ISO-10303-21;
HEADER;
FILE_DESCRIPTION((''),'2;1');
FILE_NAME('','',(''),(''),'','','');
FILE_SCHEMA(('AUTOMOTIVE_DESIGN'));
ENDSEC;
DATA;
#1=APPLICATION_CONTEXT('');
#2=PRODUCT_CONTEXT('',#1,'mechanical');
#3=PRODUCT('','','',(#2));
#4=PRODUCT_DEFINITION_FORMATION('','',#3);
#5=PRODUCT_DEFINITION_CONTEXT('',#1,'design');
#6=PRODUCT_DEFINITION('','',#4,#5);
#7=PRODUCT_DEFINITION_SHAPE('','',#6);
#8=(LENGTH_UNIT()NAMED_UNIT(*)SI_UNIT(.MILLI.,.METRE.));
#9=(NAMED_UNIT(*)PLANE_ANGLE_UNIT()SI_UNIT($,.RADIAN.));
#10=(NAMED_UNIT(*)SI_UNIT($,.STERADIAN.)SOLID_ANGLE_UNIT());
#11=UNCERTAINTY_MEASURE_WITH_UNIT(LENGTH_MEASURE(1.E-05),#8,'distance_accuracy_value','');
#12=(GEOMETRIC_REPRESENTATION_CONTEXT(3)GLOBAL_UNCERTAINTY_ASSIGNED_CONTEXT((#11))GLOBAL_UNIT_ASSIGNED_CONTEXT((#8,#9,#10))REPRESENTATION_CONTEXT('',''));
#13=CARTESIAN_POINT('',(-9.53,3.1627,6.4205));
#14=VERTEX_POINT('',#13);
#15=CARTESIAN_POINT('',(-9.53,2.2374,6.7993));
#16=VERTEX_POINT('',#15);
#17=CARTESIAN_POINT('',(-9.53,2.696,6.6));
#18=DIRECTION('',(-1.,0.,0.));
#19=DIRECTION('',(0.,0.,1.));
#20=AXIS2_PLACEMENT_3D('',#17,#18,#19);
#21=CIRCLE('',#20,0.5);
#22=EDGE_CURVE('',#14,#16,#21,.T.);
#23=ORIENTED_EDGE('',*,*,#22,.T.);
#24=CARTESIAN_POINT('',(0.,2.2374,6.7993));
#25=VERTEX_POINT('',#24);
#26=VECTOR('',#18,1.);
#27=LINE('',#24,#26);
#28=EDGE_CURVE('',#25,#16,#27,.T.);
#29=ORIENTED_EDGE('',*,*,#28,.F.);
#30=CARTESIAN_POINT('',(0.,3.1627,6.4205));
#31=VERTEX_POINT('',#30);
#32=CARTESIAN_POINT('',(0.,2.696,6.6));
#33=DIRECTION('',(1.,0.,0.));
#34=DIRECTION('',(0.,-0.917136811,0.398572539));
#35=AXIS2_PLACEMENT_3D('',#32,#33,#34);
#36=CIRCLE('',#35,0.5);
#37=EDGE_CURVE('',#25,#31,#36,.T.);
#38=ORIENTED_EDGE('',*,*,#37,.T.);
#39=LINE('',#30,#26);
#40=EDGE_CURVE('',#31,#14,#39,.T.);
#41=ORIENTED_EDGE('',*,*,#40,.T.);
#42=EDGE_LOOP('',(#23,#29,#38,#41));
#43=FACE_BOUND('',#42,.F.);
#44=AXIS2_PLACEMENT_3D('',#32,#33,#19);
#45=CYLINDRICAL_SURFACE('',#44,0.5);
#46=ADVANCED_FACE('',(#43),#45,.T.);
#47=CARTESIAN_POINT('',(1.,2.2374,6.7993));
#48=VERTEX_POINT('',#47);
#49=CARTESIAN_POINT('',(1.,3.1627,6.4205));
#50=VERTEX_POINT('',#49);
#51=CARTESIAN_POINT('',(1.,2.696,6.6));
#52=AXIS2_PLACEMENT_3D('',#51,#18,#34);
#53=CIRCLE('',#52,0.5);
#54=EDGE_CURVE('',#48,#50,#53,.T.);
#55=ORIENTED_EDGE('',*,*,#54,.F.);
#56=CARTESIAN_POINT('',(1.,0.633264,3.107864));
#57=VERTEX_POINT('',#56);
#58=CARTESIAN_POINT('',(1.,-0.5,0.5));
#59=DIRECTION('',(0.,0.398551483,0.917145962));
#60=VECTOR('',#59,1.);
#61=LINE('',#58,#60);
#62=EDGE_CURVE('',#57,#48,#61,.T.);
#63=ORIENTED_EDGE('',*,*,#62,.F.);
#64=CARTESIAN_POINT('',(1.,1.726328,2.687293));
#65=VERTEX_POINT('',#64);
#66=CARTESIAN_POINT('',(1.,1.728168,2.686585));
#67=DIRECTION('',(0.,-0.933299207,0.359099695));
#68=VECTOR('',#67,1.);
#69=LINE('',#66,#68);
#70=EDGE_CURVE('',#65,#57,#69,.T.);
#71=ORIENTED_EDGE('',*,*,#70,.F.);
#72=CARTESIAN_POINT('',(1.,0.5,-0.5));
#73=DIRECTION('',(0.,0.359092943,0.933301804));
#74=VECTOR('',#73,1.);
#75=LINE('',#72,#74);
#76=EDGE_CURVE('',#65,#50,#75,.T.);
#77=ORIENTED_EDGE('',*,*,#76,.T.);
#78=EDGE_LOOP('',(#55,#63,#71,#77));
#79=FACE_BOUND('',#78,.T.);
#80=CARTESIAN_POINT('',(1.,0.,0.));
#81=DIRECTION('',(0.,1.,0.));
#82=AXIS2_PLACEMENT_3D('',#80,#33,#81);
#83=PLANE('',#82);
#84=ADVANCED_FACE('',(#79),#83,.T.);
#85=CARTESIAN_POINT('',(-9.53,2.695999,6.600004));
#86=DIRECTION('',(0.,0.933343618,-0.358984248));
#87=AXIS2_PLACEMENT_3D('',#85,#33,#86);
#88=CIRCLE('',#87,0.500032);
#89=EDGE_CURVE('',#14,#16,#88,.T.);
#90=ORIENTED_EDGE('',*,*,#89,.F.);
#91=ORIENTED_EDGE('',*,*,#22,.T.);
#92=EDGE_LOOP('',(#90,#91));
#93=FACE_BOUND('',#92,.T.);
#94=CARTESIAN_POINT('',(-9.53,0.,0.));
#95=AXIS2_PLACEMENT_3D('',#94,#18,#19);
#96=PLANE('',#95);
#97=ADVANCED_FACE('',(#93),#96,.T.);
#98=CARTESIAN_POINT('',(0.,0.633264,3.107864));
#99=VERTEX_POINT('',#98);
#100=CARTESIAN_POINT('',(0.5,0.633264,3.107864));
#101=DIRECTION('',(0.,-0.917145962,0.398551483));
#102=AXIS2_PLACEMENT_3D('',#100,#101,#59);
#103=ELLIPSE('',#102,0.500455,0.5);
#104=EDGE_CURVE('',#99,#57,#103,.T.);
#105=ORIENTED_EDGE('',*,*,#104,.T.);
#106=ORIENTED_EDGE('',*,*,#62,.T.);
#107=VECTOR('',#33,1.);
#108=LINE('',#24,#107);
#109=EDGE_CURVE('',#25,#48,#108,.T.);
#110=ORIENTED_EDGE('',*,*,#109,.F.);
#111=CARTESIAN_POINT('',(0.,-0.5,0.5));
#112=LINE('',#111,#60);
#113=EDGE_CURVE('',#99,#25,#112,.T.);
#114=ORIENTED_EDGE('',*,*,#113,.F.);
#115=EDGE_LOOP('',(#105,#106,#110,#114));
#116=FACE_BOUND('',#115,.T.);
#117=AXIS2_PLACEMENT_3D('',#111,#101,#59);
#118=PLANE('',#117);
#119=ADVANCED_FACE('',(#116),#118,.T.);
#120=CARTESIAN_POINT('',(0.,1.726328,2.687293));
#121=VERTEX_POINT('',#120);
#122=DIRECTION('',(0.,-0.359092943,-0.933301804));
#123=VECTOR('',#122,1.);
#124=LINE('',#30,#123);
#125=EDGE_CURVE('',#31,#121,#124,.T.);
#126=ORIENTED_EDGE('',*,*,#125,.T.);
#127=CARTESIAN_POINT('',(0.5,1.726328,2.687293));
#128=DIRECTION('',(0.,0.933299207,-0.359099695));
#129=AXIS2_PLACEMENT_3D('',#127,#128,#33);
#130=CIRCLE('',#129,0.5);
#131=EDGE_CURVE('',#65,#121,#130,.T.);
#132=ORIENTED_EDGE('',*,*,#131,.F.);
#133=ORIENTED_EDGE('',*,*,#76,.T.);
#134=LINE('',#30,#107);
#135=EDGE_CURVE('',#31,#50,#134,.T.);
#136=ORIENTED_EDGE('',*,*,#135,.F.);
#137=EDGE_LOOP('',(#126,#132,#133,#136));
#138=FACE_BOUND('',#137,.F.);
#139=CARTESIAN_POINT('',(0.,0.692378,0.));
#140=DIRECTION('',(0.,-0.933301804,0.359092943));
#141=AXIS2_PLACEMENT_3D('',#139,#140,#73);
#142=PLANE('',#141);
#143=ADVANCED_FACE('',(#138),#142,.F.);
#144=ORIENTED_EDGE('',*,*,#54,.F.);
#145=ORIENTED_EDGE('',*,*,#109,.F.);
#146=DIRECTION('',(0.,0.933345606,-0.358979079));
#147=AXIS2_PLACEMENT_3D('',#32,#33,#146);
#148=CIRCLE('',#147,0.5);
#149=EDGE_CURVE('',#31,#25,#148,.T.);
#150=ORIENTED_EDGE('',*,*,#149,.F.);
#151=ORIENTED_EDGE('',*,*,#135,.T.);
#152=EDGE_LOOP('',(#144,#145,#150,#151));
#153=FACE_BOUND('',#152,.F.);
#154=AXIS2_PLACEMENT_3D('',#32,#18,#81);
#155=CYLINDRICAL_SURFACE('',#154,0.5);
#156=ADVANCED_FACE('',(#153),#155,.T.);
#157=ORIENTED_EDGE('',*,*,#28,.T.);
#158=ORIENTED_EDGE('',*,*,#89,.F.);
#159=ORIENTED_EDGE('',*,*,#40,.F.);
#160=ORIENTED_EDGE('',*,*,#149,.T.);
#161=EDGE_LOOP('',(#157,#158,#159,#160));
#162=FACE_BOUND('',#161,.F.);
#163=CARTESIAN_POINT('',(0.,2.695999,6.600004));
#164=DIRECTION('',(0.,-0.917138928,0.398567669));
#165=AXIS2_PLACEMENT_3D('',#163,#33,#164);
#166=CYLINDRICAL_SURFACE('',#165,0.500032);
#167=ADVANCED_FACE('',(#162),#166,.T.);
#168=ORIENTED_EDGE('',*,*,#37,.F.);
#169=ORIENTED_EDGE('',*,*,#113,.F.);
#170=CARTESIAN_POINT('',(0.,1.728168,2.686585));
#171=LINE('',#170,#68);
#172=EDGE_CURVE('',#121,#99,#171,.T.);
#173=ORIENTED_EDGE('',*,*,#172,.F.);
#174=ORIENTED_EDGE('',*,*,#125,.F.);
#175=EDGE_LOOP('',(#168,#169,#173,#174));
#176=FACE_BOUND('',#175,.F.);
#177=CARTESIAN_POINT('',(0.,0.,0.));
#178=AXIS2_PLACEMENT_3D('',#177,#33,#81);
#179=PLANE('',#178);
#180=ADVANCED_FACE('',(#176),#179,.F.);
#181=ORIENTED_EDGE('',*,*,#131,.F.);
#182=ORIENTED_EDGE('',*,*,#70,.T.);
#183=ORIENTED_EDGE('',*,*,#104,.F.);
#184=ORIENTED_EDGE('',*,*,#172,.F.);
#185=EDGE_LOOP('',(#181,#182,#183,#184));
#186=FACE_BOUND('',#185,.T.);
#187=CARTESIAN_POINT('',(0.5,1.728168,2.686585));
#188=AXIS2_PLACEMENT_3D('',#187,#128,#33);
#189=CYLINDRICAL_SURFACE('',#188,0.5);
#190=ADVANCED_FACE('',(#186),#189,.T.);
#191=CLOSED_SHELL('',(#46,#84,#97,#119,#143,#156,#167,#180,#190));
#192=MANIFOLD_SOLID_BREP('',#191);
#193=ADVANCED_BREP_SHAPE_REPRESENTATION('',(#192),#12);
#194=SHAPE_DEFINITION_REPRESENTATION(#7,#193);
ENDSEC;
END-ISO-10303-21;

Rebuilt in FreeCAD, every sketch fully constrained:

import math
import FreeCAD as App
import Part
import Sketcher

V = App.Vector

doc = App.newDocument("Part")
body = doc.addObject("PartDesign::Body", "Body")

sketch1 = body.newObject("Sketcher::SketchObject", "Sketch")
sketch1.AttachmentSupport = (doc.getObject("YZ_Plane"), [""])
sketch1.MapMode = "FlatFace"
sketch1.addGeometry([
    Part.LineSegment(V(2.2, 6.8, 0), V(-0.5, 0.5, 0)),
    Part.LineSegment(V(-0.5, 0.5, 0), V(-0.5, -0.5, 0)),
    Part.LineSegment(V(-0.5, -0.5, 0), V(0.5, -0.5, 0)),
    Part.LineSegment(V(0.5, -0.5, 0), V(3.2, 6.4, 0)),
    Part.ArcOfCircle(Part.Circle(V(2.7, 6.6, 0), V(0, 0, 1), 0.5), math.radians(-21), math.radians(157)),
], False)
sketch1.addConstraint([
    Sketcher.Constraint("Coincident", 0, 2, 1, 1),
    Sketcher.Constraint("Coincident", 1, 2, 2, 1),
    Sketcher.Constraint("Coincident", 2, 2, 3, 1),
    Sketcher.Constraint("Tangent", 3, 2, 4, 1),
    Sketcher.Constraint("Tangent", 4, 2, 0, 1),
    Sketcher.Constraint("Vertical", 1),
    Sketcher.Constraint("Horizontal", 2),
    Sketcher.Constraint("Symmetric", 0, 2, 2, 2, -1, 1),
    Sketcher.Constraint("Equal", 2, 1),
    Sketcher.Constraint("Radius", 4, 0.5),
    Sketcher.Constraint("DistanceX", 2, 1, 2, 2, 1.0),
    Sketcher.Constraint("DistanceY", -1, 1, 4, 3, 6.6),
    Sketcher.Constraint("DistanceX", -1, 1, 4, 3, 2.696),
])
pad1 = body.newObject("PartDesign::Pad", "Pad")
pad1.Profile = sketch1
pad1.Length = 1

sketch2 = body.newObject("Sketcher::SketchObject", "Sketch001")
sketch2.AttachmentSupport = (doc.getObject("YZ_Plane"), [""])
sketch2.MapMode = "FlatFace"
sketch2.addGeometry([
    Part.LineSegment(V(0.5, -0.5, 0), V(-0.5, -0.5, 0)),
    Part.LineSegment(V(-0.5, -0.5, 0), V(-0.5, 0.5, 0)),
    Part.LineSegment(V(-0.5, 0.5, 0), V(0.5, 0.5, 0)),
    Part.LineSegment(V(0.5, 0.5, 0), V(0.5, -0.5, 0)),
    Part.ArcOfCircle(Part.Circle(V(2.7, 6.6, 0), V(0, 0, 1), 0.5), math.radians(157), math.radians(339)),
    Part.ArcOfCircle(Part.Circle(V(2.7, 6.6, 0), V(0, 0, 1), 0.5), math.radians(-21), math.radians(157)),
], False)
sketch2.addConstraint([
    Sketcher.Constraint("Coincident", 0, 2, 1, 1),
    Sketcher.Constraint("Coincident", 1, 2, 2, 1),
    Sketcher.Constraint("Coincident", 2, 2, 3, 1),
    Sketcher.Constraint("Coincident", 3, 2, 0, 1),
    Sketcher.Constraint("Tangent", 4, 1, 5, 2),
    Sketcher.Constraint("Coincident", 5, 1, 4, 2),
    Sketcher.Constraint("Horizontal", 0),
    Sketcher.Constraint("Vertical", 1),
    Sketcher.Constraint("Horizontal", 2),
    Sketcher.Constraint("Vertical", 3),
    Sketcher.Constraint("Symmetric", 0, 2, 2, 2, -1, 1),
    Sketcher.Constraint("Equal", 2, 1),
    Sketcher.Constraint("Radius", 4, 0.5),
    Sketcher.Constraint("DistanceX", 0, 2, 0, 1, 1.0),
    Sketcher.Constraint("DistanceY", -1, 1, 4, 3, 6.6),
    Sketcher.Constraint("DistanceX", -1, 1, 4, 3, 2.696),
    Sketcher.Constraint("DistanceX", -1, 1, 4, 1, 2.2374),
    Sketcher.Constraint("DistanceX", -1, 1, 5, 1, 3.1627),
])
pad2 = body.newObject("PartDesign::Pad", "Pad001")
pad2.Profile = sketch2
pad2.Length = 9.53
pad2.Reversed = True

sketch3 = body.newObject("Sketcher::SketchObject", "Sketch002")
sketch3.Placement = App.Placement(V(0, 3.1627, 6.4205), App.Rotation(V(1, 0, 0), V(0, -0.359099695, -0.933299207), V(0, 0.933299207, -0.359099695), "ZXY"))
sketch3.addGeometry([
    Part.ArcOfCircle(Part.Circle(V(0.5, 4, 0), V(0, 0, 1), 0.5), math.radians(0), math.radians(180)),
    Part.LineSegment(V(1, 4, 0), V(2.2974, 4.6522, 0)),
    Part.LineSegment(V(2.2974, 4.6522, 0), V(2.4132, 8.4295, 0)),
    Part.LineSegment(V(2.4132, 8.4295, 0), V(-8.5006, 8.8849, 0)),
    Part.LineSegment(V(-8.5006, 8.8849, 0), V(-10.8473, 7.9695, 0)),
    Part.LineSegment(V(-10.8473, 7.9695, 0), V(-9.9233, 6.1312, 0)),
    Part.LineSegment(V(-9.9233, 6.1312, 0), V(-3.8147, 5.4684, 0)),
    Part.LineSegment(V(-3.8147, 5.4684, 0), V(0, 4, 0)),
], False)
sketch3.addConstraint([
    Sketcher.Constraint("Coincident", 0, 1, 1, 1),
    Sketcher.Constraint("Coincident", 1, 2, 2, 1),
    Sketcher.Constraint("Coincident", 2, 2, 3, 1),
    Sketcher.Constraint("Coincident", 3, 2, 4, 1),
    Sketcher.Constraint("Coincident", 4, 2, 5, 1),
    Sketcher.Constraint("Coincident", 5, 2, 6, 1),
    Sketcher.Constraint("Coincident", 6, 2, 7, 1),
    Sketcher.Constraint("Coincident", 7, 2, 0, 2),
    Sketcher.Constraint("PointOnObject", 7, 2, -2),
    Sketcher.Constraint("DistanceY", -1, 1, 0, 3, 4.0),
    Sketcher.Constraint("DistanceY", -1, 1, 0, 1, 4.0),
    Sketcher.Constraint("DistanceY", -1, 1, 7, 2, 4.0),
    Sketcher.Constraint("Radius", 0, 0.5),
    Sketcher.Constraint("DistanceY", 4, 2, 2, 2, 0.46),
    Sketcher.Constraint("Distance", 1, 1.452),
    Sketcher.Constraint("Distance", 2, 3.779),
    Sketcher.Constraint("Distance", 4, 2.519),
    Sketcher.Constraint("DistanceY", -1, 1, 3, 2, 8.885),
    Sketcher.Constraint("DistanceX", 3, 2, 1, 2, 10.798),
    Sketcher.Constraint("DistanceX", 4, 2, 5, 2, 0.924),
    Sketcher.Constraint("DistanceY", 1, 2, 5, 2, 1.479),
    Sketcher.Constraint("DistanceX", 3, 2, 6, 2, 4.686),
    Sketcher.Constraint("Distance", 3, 10.9233),
    Sketcher.Constraint("Distance", 6, 6.1445),
    Sketcher.Constraint("Distance", 7, 4.0876),
])
pocket1 = body.newObject("PartDesign::Pocket", "Pocket")
pocket1.Profile = sketch3
pocket1.Length = 10

doc.recompute()
